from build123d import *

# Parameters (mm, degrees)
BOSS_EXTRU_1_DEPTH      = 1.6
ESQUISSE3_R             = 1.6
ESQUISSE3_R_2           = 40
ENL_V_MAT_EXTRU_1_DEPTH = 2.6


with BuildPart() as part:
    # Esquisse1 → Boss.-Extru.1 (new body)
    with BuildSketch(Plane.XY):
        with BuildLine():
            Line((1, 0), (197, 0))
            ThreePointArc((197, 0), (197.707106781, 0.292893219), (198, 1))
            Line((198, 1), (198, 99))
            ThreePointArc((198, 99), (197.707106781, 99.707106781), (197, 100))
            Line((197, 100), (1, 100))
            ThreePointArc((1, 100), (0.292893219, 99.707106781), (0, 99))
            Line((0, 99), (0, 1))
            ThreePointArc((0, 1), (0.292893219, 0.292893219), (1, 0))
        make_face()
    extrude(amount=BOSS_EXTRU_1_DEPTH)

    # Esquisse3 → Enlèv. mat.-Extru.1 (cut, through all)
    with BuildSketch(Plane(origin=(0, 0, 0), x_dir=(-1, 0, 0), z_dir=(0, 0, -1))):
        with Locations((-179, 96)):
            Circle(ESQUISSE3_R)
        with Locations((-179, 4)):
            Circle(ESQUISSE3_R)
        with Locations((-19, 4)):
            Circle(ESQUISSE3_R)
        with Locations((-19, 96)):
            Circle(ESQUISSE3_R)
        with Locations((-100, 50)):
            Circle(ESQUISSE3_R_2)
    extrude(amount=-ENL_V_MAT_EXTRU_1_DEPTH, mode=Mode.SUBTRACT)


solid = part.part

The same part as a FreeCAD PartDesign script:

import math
import FreeCAD as App
import Part
import Sketcher
Q = App.Units.Quantity

doc = App.newDocument("Part")
body = doc.addObject("PartDesign::Body", "Body")

# Sketch on XY plane
sketch1 = doc.addObject("Sketcher::SketchObject", "Sketch")
body.addObject(sketch1)
sketch1.AttachmentSupport = (doc.XY_Plane, [""])
sketch1.MapMode = "FlatFace"
sketch1.addGeometry([
    Part.LineSegment(App.Vector(1, 0, 0), App.Vector(197, 0, 0)),  # 0
    Part.ArcOfCircle(Part.Circle(App.Vector(197, 1, 0), App.Vector(0, 0, 1), 1), math.radians(-90), math.radians(0)),  # 1
    Part.LineSegment(App.Vector(198, 1, 0), App.Vector(198, 99, 0)),  # 2
    Part.ArcOfCircle(Part.Circle(App.Vector(197, 99, 0), App.Vector(0, 0, 1), 1), math.radians(0), math.radians(90)),  # 3
    Part.LineSegment(App.Vector(197, 100, 0), App.Vector(1, 100, 0)),  # 4
    Part.ArcOfCircle(Part.Circle(App.Vector(1, 99, 0), App.Vector(0, 0, 1), 1), math.radians(90), math.radians(180)),  # 5
    Part.LineSegment(App.Vector(0, 99, 0), App.Vector(0, 1, 0)),  # 6
    Part.ArcOfCircle(Part.Circle(App.Vector(1, 1, 0), App.Vector(0, 0, 1), 1), math.radians(-180), math.radians(-90)),  # 7
], False)
sketch1.addConstraint([
    Sketcher.Constraint("Tangent", 0, 2, 1, 1),
    Sketcher.Constraint("Tangent", 1, 2, 2, 1),
    Sketcher.Constraint("Tangent", 2, 2, 3, 1),
    Sketcher.Constraint("Tangent", 3, 2, 4, 1),
    Sketcher.Constraint("Tangent", 4, 2, 5, 1),
    Sketcher.Constraint("Tangent", 5, 2, 6, 1),
    Sketcher.Constraint("Tangent", 6, 2, 7, 1),
    Sketcher.Constraint("Tangent", 7, 2, 0, 1),
    Sketcher.Constraint("Horizontal", 0),
    Sketcher.Constraint("Vertical", 2),
    Sketcher.Constraint("Horizontal", 4),
    Sketcher.Constraint("Vertical", 6),
    Sketcher.Constraint("Equal", 1, 3),
    Sketcher.Constraint("Equal", 3, 5),
    Sketcher.Constraint("Equal", 5, 7),
    Sketcher.Constraint("PointOnObject", 0, 2, -1),
    Sketcher.Constraint("PointOnObject", 5, 2, -2),
    Sketcher.Constraint("Radius", 1, Q("1 mm")),
    Sketcher.Constraint("DistanceX", 0, 1, 0, 2, Q("196 mm")),
    Sketcher.Constraint("DistanceY", 2, 1, 2, 2, Q("98 mm")),
])
pad1 = doc.addObject("PartDesign::Pad", "Pad")
body.addObject(pad1)
pad1.Profile = sketch1
pad1.Length = 1.6

# Sketch on XY plane
sketch2 = doc.addObject("Sketcher::SketchObject", "Sketch001")
body.addObject(sketch2)
sketch2.AttachmentSupport = (doc.XY_Plane, [""])
sketch2.MapMode = "FlatFace"
sketch2.addGeometry([
    Part.Circle(App.Vector(179, 96, 0), App.Vector(0, 0, 1), 1.6),  # 0
    Part.Circle(App.Vector(179, 4, 0), App.Vector(0, 0, 1), 1.6),  # 1
    Part.Circle(App.Vector(19, 4, 0), App.Vector(0, 0, 1), 1.6),  # 2
    Part.Circle(App.Vector(19, 96, 0), App.Vector(0, 0, 1), 1.6),  # 3
    Part.Circle(App.Vector(100, 50, 0), App.Vector(0, 0, 1), 40),  # 4
], False)
sketch2.addConstraint([
    Sketcher.Constraint("Equal", 0, 1),
    Sketcher.Constraint("Equal", 1, 2),
    Sketcher.Constraint("Equal", 2, 3),
    Sketcher.Constraint("Horizontal", 1, 3, 2, 3),
    Sketcher.Constraint("Horizontal", 0, 3, 3, 3),
    Sketcher.Constraint("Vertical", 0, 3, 1, 3),
    Sketcher.Constraint("Vertical", 2, 3, 3, 3),
    Sketcher.Constraint("Diameter", 4, Q("80 mm")),
    Sketcher.Constraint("Diameter", 0, Q("3.2 mm")),
    Sketcher.Constraint("DistanceX", -1, 1, 0, 3, Q("179 mm")),
    Sketcher.Constraint("DistanceY", -1, 1, 0, 3, Q("96 mm")),
    Sketcher.Constraint("DistanceY", -1, 1, 1, 3, Q("4 mm")),
    Sketcher.Constraint("DistanceX", -1, 1, 2, 3, Q("19 mm")),
    Sketcher.Constraint("DistanceX", -1, 1, 4, 3, Q("100 mm")),
    Sketcher.Constraint("DistanceY", -1, 1, 4, 3, Q("50 mm")),
])
pocket1 = doc.addObject("PartDesign::Pocket", "Pocket")
body.addObject(pocket1)
pocket1.Profile = sketch2
pocket1.Type = "ThroughAll"
pocket1.Reversed = True

doc.recompute()
